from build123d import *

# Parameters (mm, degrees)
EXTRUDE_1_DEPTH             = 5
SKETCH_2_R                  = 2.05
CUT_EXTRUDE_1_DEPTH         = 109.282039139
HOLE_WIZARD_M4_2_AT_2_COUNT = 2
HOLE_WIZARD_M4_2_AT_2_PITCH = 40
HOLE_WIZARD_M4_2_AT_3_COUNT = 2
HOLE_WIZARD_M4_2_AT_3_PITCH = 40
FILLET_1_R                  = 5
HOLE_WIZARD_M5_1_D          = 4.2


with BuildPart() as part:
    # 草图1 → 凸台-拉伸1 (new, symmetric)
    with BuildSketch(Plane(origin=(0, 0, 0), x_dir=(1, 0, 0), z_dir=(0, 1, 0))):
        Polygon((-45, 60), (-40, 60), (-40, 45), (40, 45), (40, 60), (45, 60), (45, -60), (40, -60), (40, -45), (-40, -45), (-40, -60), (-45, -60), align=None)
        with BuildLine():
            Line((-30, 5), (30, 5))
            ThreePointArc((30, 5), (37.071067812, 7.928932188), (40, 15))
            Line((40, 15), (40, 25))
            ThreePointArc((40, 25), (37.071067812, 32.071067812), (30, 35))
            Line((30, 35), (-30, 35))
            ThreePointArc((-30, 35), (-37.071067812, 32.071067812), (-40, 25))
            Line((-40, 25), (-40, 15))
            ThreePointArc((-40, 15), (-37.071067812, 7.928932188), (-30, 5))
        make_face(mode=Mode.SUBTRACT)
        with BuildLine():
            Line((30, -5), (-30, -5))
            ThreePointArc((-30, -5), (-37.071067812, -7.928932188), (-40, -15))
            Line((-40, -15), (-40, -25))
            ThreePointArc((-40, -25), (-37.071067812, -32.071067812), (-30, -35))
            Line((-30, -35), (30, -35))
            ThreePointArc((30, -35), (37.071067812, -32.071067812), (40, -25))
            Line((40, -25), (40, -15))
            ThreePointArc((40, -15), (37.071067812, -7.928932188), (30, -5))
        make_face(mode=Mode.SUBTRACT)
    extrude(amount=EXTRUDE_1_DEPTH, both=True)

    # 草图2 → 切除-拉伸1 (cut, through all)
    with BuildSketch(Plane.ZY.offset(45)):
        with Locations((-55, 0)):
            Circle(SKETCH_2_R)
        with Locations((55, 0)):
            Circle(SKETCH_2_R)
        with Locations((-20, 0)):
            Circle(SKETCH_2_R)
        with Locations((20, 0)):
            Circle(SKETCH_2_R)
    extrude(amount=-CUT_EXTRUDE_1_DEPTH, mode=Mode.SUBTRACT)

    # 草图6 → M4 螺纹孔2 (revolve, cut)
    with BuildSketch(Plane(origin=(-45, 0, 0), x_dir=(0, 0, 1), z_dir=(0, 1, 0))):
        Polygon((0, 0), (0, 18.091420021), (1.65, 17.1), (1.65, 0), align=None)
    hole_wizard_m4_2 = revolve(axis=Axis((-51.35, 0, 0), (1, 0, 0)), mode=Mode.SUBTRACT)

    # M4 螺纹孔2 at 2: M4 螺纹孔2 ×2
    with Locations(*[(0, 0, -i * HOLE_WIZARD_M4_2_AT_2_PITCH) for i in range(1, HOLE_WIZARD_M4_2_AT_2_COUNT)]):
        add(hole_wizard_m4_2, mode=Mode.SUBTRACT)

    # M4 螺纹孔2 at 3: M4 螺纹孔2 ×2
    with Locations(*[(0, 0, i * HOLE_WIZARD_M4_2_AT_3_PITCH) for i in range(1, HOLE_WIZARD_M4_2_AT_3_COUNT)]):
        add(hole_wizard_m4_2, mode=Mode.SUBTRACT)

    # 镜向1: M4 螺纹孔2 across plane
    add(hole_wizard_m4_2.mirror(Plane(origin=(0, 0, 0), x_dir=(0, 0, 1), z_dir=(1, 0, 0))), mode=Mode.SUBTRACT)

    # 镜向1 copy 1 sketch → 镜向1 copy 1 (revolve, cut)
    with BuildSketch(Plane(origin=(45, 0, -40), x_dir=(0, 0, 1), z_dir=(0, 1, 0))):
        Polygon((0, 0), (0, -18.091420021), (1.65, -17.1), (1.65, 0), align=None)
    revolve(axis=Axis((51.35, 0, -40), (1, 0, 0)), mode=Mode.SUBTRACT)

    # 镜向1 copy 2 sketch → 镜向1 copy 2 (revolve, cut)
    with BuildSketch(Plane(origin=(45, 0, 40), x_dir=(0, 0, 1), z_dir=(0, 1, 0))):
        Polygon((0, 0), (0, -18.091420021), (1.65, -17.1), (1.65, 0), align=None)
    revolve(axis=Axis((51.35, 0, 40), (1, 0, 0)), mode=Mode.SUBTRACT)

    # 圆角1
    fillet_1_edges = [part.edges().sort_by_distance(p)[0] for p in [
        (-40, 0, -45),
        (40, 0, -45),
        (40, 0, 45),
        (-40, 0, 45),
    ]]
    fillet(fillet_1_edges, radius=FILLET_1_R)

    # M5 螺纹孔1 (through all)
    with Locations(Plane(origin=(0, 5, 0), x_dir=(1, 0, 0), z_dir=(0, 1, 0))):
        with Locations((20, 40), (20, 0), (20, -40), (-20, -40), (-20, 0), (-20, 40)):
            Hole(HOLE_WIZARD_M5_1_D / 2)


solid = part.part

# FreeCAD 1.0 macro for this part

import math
import FreeCAD as App
import Part
import Sketcher
from FreeCAD import Vector
Q = App.Units.Quantity


def edges_at(feature, points):
    """Names of the edges that pass closest to the given points."""
    edges = feature.Shape.Edges
    near = lambda p: min(range(len(edges)), key=lambda i: edges[i].distToShape(Part.Vertex(*p))[0])
    return sorted({f"Edge{near(p) + 1}" for p in points})


def add_polygon(sketch, points):
    """Adds a closed chain of lines whose ends are joined by coincident constraints."""
    first, n = sketch.GeometryCount, len(points)
    for a, b in zip(points, points[1:] + points[:1]):
        sketch.addGeometry(Part.LineSegment(App.Vector(*a, 0), App.Vector(*b, 0)), False)
    for i in range(n):
        sketch.addConstraint(Sketcher.Constraint("Coincident", first + i, 2, first + (i + 1) % n, 1))

doc = App.newDocument("Part")
body = doc.addObject("PartDesign::Body", "Body")

sketch1 = body.newObject("Sketcher::SketchObject", "Sketch")
sketch1.AttachmentSupport = (doc.getObject("XZ_Plane"), [""])
sketch1.MapMode = "FlatFace"
add_polygon(sketch1, [(-40, -60), (-45, -60), (-45, 60), (-40, 60), (-40, 45), (40, 45), (40, 60), (45, 60), (45, -60), (40, -60), (40, -45), (-40, -45)])
sketch1.addGeometry(Part.ArcOfCircle(Part.Circle(Vector(30, 15, 0), Vector(0, 0, 1), 10), math.radians(-90), math.radians(0)), False)
sketch1.addGeometry(Part.LineSegment(Vector(40, 15, 0), Vector(40, 25, 0)), False)
sketch1.addGeometry(Part.ArcOfCircle(Part.Circle(Vector(30, 25, 0), Vector(0, 0, 1), 10), math.radians(0), math.radians(90)), False)
sketch1.addGeometry(Part.LineSegment(Vector(30, 35, 0), Vector(-30, 35, 0)), False)
sketch1.addGeometry(Part.ArcOfCircle(Part.Circle(Vector(-30, 25, 0), Vector(0, 0, 1), 10), math.radians(90), math.radians(180)), False)
sketch1.addGeometry(Part.LineSegment(Vector(-40, 25, 0), Vector(-40, 15, 0)), False)
sketch1.addGeometry(Part.ArcOfCircle(Part.Circle(Vector(-30, 15, 0), Vector(0, 0, 1), 10), math.radians(180), math.radians(270)), False)
sketch1.addGeometry(Part.LineSegment(Vector(-30, 5, 0), Vector(30, 5, 0)), False)
sketch1.addGeometry(Part.ArcOfCircle(Part.Circle(Vector(-30, -15, 0), Vector(0, 0, 1), 10), math.radians(90), math.radians(180)), False)
sketch1.addGeometry(Part.LineSegment(Vector(-40, -15, 0), Vector(-40, -25, 0)), False)
sketch1.addGeometry(Part.ArcOfCircle(Part.Circle(Vector(-30, -25, 0), Vector(0, 0, 1), 10), math.radians(180), math.radians(270)), False)
sketch1.addGeometry(Part.LineSegment(Vector(-30, -35, 0), Vector(30, -35, 0)), False)
sketch1.addGeometry(Part.ArcOfCircle(Part.Circle(Vector(30, -25, 0), Vector(0, 0, 1), 10), math.radians(-90), math.radians(0)), False)
sketch1.addGeometry(Part.LineSegment(Vector(40, -25, 0), Vector(40, -15, 0)), False)
sketch1.addGeometry(Part.ArcOfCircle(Part.Circle(Vector(30, -15, 0), Vector(0, 0, 1), 10), math.radians(0), math.radians(90)), False)
sketch1.addGeometry(Part.LineSegment(Vector(30, -5, 0), Vector(-30, -5, 0)), False)
sketch1.addConstraint([
    Sketcher.Constraint("Tangent", 12, 2, 13, 1),
    Sketcher.Constraint("Tangent", 13, 2, 14, 1),
    Sketcher.Constraint("Tangent", 14, 2, 15, 1),
    Sketcher.Constraint("Tangent", 15, 2, 16, 1),
    Sketcher.Constraint("Tangent", 16, 2, 17, 1),
    Sketcher.Constraint("Tangent", 17, 2, 18, 1),
    Sketcher.Constraint("Tangent", 18, 2, 19, 1),
    Sketcher.Constraint("Tangent", 19, 2, 12, 1),
    Sketcher.Constraint("Tangent", 20, 2, 21, 1),
    Sketcher.Constraint("Tangent", 21, 2, 22, 1),
    Sketcher.Constraint("Tangent", 22, 2, 23, 1),
    Sketcher.Constraint("Tangent", 23, 2, 24, 1),
    Sketcher.Constraint("Tangent", 24, 2, 25, 1),
    Sketcher.Constraint("Tangent", 25, 2, 26, 1),
    Sketcher.Constraint("Tangent", 26, 2, 27, 1),
    Sketcher.Constraint("Tangent", 27, 2, 20, 1),
    Sketcher.Constraint("Horizontal", 0),
    Sketcher.Constraint("Vertical", 1),
    Sketcher.Constraint("Horizontal", 2),
    Sketcher.Constraint("Vertical", 3),
    Sketcher.Constraint("Horizontal", 4),
    Sketcher.Constraint("Vertical", 5),
    Sketcher.Constraint("Horizontal", 6),
    Sketcher.Constraint("Vertical", 7),
    Sketcher.Constraint("Horizontal", 8),
    Sketcher.Constraint("Vertical", 9),
    Sketcher.Constraint("Horizontal", 10),
    Sketcher.Constraint("Vertical", 11),
    Sketcher.Constraint("Vertical", 13),
    Sketcher.Constraint("Horizontal", 15),
    Sketcher.Constraint("Vertical", 17),
    Sketcher.Constraint("Horizontal", 19),
    Sketcher.Constraint("Vertical", 21),
    Sketcher.Constraint("Horizontal", 23),
    Sketcher.Constraint("Vertical", 25),
    Sketcher.Constraint("Horizontal", 27),
    Sketcher.Constraint("Equal", 12, 14),
    Sketcher.Constraint("Equal", 14, 16),
    Sketcher.Constraint("Equal", 16, 18),
    Sketcher.Constraint("Equal", 18, 20),
    Sketcher.Constraint("Equal", 20, 22),
    Sketcher.Constraint("Equal", 22, 24),
    Sketcher.Constraint("Equal", 24, 26),
    Sketcher.Constraint("Symmetric", 12, 3, 20, 3, -1, 1),
    Sketcher.Constraint("Symmetric", 16, 3, 24, 3, -1, 1),
    Sketcher.Constraint("Symmetric", 0, 2, 6, 2, -1, 1),
    Sketcher.Constraint("Symmetric", 2, 2, 8, 2, -1, 1),
    Sketcher.Constraint("Symmetric", 4, 2, 10, 2, -1, 1),
    Sketcher.Constraint("Symmetric", 2, 2, 5, 2, -2),
    Sketcher.Constraint("Vertical", 18, 3, 20, 3),
    Sketcher.Constraint("Vertical", 9, 2, 12, 2),
    Sketcher.Constraint("Radius", 12, 10.0),
    Sketcher.Constraint("DistanceX", 0, 2, 0, 1, 5.0),
    Sketcher.Constraint("DistanceX", 4, 1, 4, 2, 80.0),
    Sketcher.Constraint("DistanceY", 1, 1, 1, 2, 120.0),
    Sketcher.Constraint("DistanceY", 3, 2, 3, 1, 15.0),
    Sketcher.Constraint("DistanceY", 13, 1, 13, 2, 10.0),
    Sketcher.Constraint("DistanceY", -1, 1, 12, 3, 15.0),
])
pad1 = body.newObject("PartDesign::Pad", "Pad")
pad1.Profile = sketch1
pad1.Length = 10
pad1.Midplane = True

sketch2 = body.newObject("Sketcher::SketchObject", "Sketch001")
sketch2.AttachmentSupport = (doc.getObject("YZ_Plane"), [""])
sketch2.MapMode = "FlatFace"
sketch2.AttachmentOffset = App.Placement(Vector(0, 0, -45), App.Rotation())
sketch2.addGeometry([
    Part.Circle(Vector(0, -55, 0), Vector(0, 0, 1), 2.05),
    Part.Circle(Vector(0, 55, 0), Vector(0, 0, 1), 2.05),
    Part.Circle(Vector(0, -20, 0), Vector(0, 0, 1), 2.05),
    Part.Circle(Vector(0, 20, 0), Vector(0, 0, 1), 2.05),
], False)
sketch2.addConstraint([
    Sketcher.Constraint("Equal", 0, 1),
    Sketcher.Constraint("Equal", 1, 2),
    Sketcher.Constraint("Equal", 2, 3),
    Sketcher.Constraint("Symmetric", 0, 3, 1, 3, -1, 1),
    Sketcher.Constraint("Symmetric", 2, 3, 3, 3, -1, 1),
    Sketcher.Constraint("PointOnObject", 0, 3, -2),
    Sketcher.Constraint("PointOnObject", 2, 3, -2),
    Sketcher.Constraint("Diameter", 0, 4.1),
    Sketcher.Constraint("DistanceY", 0, 3, -1, 1, 55.0),
    Sketcher.Constraint("DistanceY", 2, 3, -1, 1, 20.0),
])
pocket1 = body.newObject("PartDesign::Pocket", "Pocket")
pocket1.Profile = sketch2
pocket1.Type = "ThroughAll"
pocket1.Reversed = True

sketch3 = body.newObject("Sketcher::SketchObject", "Sketch002")
sketch3.AttachmentSupport = (doc.getObject("XZ_Plane"), [""])
sketch3.MapMode = "FlatFace"
add_polygon(sketch3, [(-26.90858, 0), (-45, 0), (-45, 1.65), (-27.9, 1.65)])
sketch3.addConstraint([
    Sketcher.Constraint("Horizontal", 0),
    Sketcher.Constraint("Vertical", 1),
    Sketcher.Constraint("Horizontal", 2),
    Sketcher.Constraint("PointOnObject", 0, 2, -1),
    Sketcher.Constraint("Angle", 3, Q("-59 deg")),
    Sketcher.Constraint("DistanceX", 2, 1, 2, 2, 17.1),
    Sketcher.Constraint("DistanceX", 0, 2, -1, 1, 45.0),
    Sketcher.Constraint("DistanceY", 1, 1, 1, 2, 1.65),
])
groove = body.newObject("PartDesign::Groove", "Groove")
groove.Profile = sketch3
groove.ReferenceAxis = (sketch3, ["H_Axis"])
groove.Angle = 360
doc.recompute()

linearpattern = body.newObject("PartDesign::LinearPattern", "LinearPattern")
linearpattern.Originals = [groove]
linearpattern.Direction = (doc.getObject("Z_Axis"), [""])
linearpattern.Mode = "offset"
linearpattern.Offset = 40
linearpattern.Occurrences = 2
linearpattern.Reversed = True
body.Tip = linearpattern
doc.recompute()

linearpattern2 = body.newObject("PartDesign::LinearPattern", "LinearPattern001")
linearpattern2.Originals = [groove]
linearpattern2.Direction = (doc.getObject("Z_Axis"), [""])
linearpattern2.Mode = "offset"
linearpattern2.Offset = 40
linearpattern2.Occurrences = 2
body.Tip = linearpattern2
doc.recompute()

mirrored = body.newObject("PartDesign::Mirrored", "Mirrored")
mirrored.Originals = [groove]
mirrored.MirrorPlane = (doc.getObject("YZ_Plane"), [""])
body.Tip = mirrored

sketch4 = body.newObject("Sketcher::SketchObject", "Sketch003")
sketch4.AttachmentSupport = (doc.getObject("XZ_Plane"), [""])
sketch4.MapMode = "FlatFace"
add_polygon(sketch4, [(45, -40), (26.90858, -40), (27.9, -38.35), (45, -38.35)])
sketch4.addGeometry(Part.LineSegment(Vector(26.90858, -40, 0), Vector(45, -40, 0)), True)
sketch4.addConstraint([
    Sketcher.Constraint("Horizontal", 0),
    Sketcher.Constraint("Horizontal", 2),
    Sketcher.Constraint("Vertical", 3),
    Sketcher.Constraint("Horizontal", 4),
    Sketcher.Constraint("Coincident", 4, 1, 0, 2),
    Sketcher.Constraint("Vertical", 2, 2, 4, 2),
    Sketcher.Constraint("Angle", 1, Q("59 deg")),
    Sketcher.Constraint("DistanceX", 2, 1, 2, 2, 17.1),
    Sketcher.Constraint("DistanceY", 0, 2, -1, 1, 40.0),
    Sketcher.Constraint("DistanceX", -1, 1, 2, 2, 45.0),
    Sketcher.Constraint("DistanceY", 3, 2, 3, 1, 1.65),
])
groove2 = body.newObject("PartDesign::Groove", "Groove001")
groove2.Profile = sketch4
groove2.ReferenceAxis = (sketch4, ["Axis0"])
groove2.Angle = 360

sketch5 = body.newObject("Sketcher::SketchObject", "Sketch004")
sketch5.AttachmentSupport = (doc.getObject("XZ_Plane"), [""])
sketch5.MapMode = "FlatFace"
add_polygon(sketch5, [(45, 40), (26.90858, 40), (27.9, 41.65), (45, 41.65)])
sketch5.addGeometry(Part.LineSegment(Vector(26.90858, 40, 0), Vector(45, 40, 0)), True)
sketch5.addConstraint([
    Sketcher.Constraint("Horizontal", 0),
    Sketcher.Constraint("Horizontal", 2),
    Sketcher.Constraint("Vertical", 3),
    Sketcher.Constraint("Horizontal", 4),
    Sketcher.Constraint("Coincident", 4, 1, 0, 2),
    Sketcher.Constraint("Vertical", 2, 2, 4, 2),
    Sketcher.Constraint("Angle", 1, Q("59 deg")),
    Sketcher.Constraint("DistanceX", 2, 1, 2, 2, 17.1),
    Sketcher.Constraint("DistanceY", -1, 1, 0, 2, 40.0),
    Sketcher.Constraint("DistanceX", -1, 1, 2, 2, 45.0),
    Sketcher.Constraint("DistanceY", 3, 2, 3, 1, 1.65),
])
groove3 = body.newObject("PartDesign::Groove", "Groove002")
groove3.Profile = sketch5
groove3.ReferenceAxis = (sketch5, ["Axis0"])
groove3.Angle = 360
doc.recompute()

fillet = body.newObject("PartDesign::Fillet", "Fillet")
fillet.Base = (groove3, edges_at(groove3, [
    (-40, 0, -45),
    (40, 0, -45),
    (40, 0, 45),
    (-40, 0, 45),
]))
fillet.Radius = 5

sketch6 = body.newObject("Sketcher::SketchObject", "Sketch005")
sketch6.AttachmentSupport = (doc.getObject("XZ_Plane"), [""])
sketch6.MapMode = "FlatFace"
sketch6.AttachmentOffset = App.Placement(Vector(0, 0, -5), App.Rotation())
sketch6.addGeometry([
    Part.Circle(Vector(20, -40, 0), Vector(0, 0, 1), 2.1),
    Part.Circle(Vector(20, 0, 0), Vector(0, 0, 1), 2.1),
    Part.Circle(Vector(20, 40, 0), Vector(0, 0, 1), 2.1),
    Part.Circle(Vector(-20, 40, 0), Vector(0, 0, 1), 2.1),
    Part.Circle(Vector(-20, 0, 0), Vector(0, 0, 1), 2.1),
    Part.Circle(Vector(-20, -40, 0), Vector(0, 0, 1), 2.1),
], False)
sketch6.addConstraint([
    Sketcher.Constraint("Equal", 0, 1),
    Sketcher.Constraint("Equal", 1, 2),
    Sketcher.Constraint("Equal", 2, 3),
    Sketcher.Constraint("Equal", 3, 4),
    Sketcher.Constraint("Equal", 4, 5),
    Sketcher.Constraint("Symmetric", 0, 3, 3, 3, -1, 1),
    Sketcher.Constraint("Symmetric", 1, 3, 4, 3, -1, 1),
    Sketcher.Constraint("Symmetric", 2, 3, 5, 3, -1, 1),
    Sketcher.Constraint("Symmetric", 2, 3, 3, 3, -2),
    Sketcher.Constraint("PointOnObject", 1, 3, -1),
    Sketcher.Constraint("Vertical", 0, 3, 1, 3),
    Sketcher.Constraint("Diameter", 0, 4.2),
    Sketcher.Constraint("DistanceX", -1, 1, 0, 3, 20.0),
    Sketcher.Constraint("DistanceY", 0, 3, -1, 1, 40.0),
])
doc.recompute()
hole = body.newObject("PartDesign::Hole", "Hole")
hole.Profile = sketch6
hole.ThreadType = "None"
hole.Diameter = 4.2
hole.DepthType = "ThroughAll"
hole.Reversed = True

doc.recompute()
